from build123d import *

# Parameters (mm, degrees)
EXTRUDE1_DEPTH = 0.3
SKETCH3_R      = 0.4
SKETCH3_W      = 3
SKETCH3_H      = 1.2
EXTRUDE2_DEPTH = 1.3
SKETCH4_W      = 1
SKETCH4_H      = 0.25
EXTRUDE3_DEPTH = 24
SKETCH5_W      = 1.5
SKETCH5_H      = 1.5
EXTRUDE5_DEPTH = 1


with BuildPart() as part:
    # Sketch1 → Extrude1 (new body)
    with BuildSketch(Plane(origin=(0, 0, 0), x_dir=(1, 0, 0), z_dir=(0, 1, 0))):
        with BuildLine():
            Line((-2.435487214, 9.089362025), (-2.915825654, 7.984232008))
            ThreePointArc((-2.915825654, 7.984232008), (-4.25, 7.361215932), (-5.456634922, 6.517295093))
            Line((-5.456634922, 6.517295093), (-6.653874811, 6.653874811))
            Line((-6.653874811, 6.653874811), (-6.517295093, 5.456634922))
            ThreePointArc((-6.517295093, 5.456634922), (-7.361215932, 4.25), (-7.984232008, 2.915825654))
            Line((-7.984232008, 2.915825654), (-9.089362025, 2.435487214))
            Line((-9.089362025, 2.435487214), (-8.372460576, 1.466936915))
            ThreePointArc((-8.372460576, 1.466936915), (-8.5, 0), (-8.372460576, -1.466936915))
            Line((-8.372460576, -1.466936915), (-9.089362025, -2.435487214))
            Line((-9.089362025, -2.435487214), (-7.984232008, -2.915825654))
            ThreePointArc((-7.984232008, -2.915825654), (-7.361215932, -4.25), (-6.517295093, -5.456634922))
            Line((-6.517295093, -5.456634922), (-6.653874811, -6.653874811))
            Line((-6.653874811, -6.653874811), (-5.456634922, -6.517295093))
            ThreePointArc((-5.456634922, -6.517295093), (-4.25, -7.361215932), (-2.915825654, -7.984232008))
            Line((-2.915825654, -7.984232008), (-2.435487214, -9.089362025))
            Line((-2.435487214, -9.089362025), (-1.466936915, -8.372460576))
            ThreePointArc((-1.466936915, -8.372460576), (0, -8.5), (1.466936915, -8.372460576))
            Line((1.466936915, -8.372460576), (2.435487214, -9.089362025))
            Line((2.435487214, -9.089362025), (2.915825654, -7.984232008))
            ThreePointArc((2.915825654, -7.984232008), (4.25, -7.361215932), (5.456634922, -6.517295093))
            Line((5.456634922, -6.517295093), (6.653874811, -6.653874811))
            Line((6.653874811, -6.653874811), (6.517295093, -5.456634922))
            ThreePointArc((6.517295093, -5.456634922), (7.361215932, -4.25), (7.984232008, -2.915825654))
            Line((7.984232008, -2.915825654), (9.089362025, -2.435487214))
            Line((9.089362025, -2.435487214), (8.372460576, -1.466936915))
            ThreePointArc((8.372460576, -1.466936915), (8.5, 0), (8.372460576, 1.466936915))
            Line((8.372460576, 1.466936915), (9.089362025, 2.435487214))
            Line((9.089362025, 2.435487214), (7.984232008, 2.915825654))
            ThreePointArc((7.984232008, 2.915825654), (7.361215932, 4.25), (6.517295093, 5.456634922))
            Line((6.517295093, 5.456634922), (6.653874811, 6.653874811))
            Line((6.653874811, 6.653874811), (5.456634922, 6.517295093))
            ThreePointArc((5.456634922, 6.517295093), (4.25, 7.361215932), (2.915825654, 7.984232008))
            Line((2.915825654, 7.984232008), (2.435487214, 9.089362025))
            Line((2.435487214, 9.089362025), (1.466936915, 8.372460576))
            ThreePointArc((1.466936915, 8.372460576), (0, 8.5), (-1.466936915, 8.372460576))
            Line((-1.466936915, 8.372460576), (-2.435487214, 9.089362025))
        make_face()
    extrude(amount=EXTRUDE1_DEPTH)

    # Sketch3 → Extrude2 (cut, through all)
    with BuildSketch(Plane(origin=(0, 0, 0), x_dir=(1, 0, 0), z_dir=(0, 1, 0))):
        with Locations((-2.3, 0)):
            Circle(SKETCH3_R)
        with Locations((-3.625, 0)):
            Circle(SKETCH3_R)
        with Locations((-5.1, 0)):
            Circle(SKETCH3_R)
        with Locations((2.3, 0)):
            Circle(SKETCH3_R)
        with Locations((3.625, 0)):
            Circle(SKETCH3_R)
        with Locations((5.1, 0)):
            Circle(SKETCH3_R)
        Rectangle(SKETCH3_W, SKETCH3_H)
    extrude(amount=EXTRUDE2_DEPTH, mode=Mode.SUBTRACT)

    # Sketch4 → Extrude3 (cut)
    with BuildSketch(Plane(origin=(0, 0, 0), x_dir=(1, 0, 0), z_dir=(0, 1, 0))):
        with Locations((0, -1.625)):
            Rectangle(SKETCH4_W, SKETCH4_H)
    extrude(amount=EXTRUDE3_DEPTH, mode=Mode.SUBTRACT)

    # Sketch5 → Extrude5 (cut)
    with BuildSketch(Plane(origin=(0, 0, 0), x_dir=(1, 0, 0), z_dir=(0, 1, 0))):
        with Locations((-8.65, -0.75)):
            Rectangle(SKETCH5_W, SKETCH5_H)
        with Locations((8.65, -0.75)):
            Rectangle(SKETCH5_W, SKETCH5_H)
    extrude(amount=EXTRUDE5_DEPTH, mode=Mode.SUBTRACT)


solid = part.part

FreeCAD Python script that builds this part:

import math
import FreeCAD as App
import Part
import Sketcher

V = App.Vector


def add_polygon(sketch, points):
    """Adds a closed chain of lines whose ends are joined by coincident constraints."""
    first, n = sketch.GeometryCount, len(points)
    for a, b in zip(points, points[1:] + points[:1]):
        sketch.addGeometry(Part.LineSegment(App.Vector(*a, 0), App.Vector(*b, 0)), False)
    for i in range(n):
        sketch.addConstraint(Sketcher.Constraint("Coincident", first + i, 2, first + (i + 1) % n, 1))

doc = App.newDocument("Part")
params = doc.addObject("Spreadsheet::Sheet", "Params")
for row, (alias, value) in enumerate([
    ("sketch1_radius", "8.5 mm"),
    ("pad1_length", "0.3 mm"),
    ("sketch2_diameter", "0.8 mm"),
    ("sketch2_width", "3 mm"),
    ("sketch2_height", "1.2 mm"),
    ("sketch3_width", "1 mm"),
    ("sketch3_height", "0.25 mm"),
    ("pocket2_length", "24 mm"),
    ("sketch4_width", "1.5 mm"),
    ("pocket3_length", "1 mm"),
], start=1):
    params.set(f"A{row}", alias)
    params.set(f"B{row}", "=" + value)
    params.setAlias(f"B{row}", alias)

body = doc.addObject("PartDesign::Body", "Body")

# Sketch on XZ plane
sketch1 = body.newObject("Sketcher::SketchObject", "Sketch")
sketch1.AttachmentSupport = (doc.getObject("XZ_Plane"), [""])
sketch1.MapMode = "FlatFace"
sketch1.addGeometry([
    Part.LineSegment(V(-2.4, -9.1, 0), V(-2.9, -8, 0)),  # 0
    Part.ArcOfCircle(Part.Circle(V(0, 0, 0), V(0, 0, 1), 8.5), math.radians(-129.94), math.radians(-110.06)),  # 1
    Part.LineSegment(V(-5.5, -6.5, 0), V(-6.7, -6.7, 0)),  # 2
    Part.LineSegment(V(-6.7, -6.7, 0), V(-6.5, -5.5, 0)),  # 3
    Part.ArcOfCircle(Part.Circle(V(0, 0, 0), V(0, 0, 1), 8.5), math.radians(-159.94), math.radians(-140.06)),  # 4
    Part.LineSegment(V(-8, -2.9, 0), V(-9.1, -2.4, 0)),  # 5
    Part.LineSegment(V(-9.1, -2.4, 0), V(-8.4, -1.5, 0)),  # 6
    Part.ArcOfCircle(Part.Circle(V(0, 0, 0), V(0, 0, 1), 8.5), math.radians(170.06), math.radians(189.94)),  # 7
    Part.LineSegment(V(-8.4, 1.5, 0), V(-9.1, 2.4, 0)),  # 8
    Part.LineSegment(V(-9.1, 2.4, 0), V(-8, 2.9, 0)),  # 9
    Part.ArcOfCircle(Part.Circle(V(0, 0, 0), V(0, 0, 1), 8.5), math.radians(140.06), math.radians(159.94)),  # 10
    Part.LineSegment(V(-6.5, 5.5, 0), V(-6.7, 6.7, 0)),  # 11
    Part.LineSegment(V(-6.7, 6.7, 0), V(-5.5, 6.5, 0)),  # 12
    Part.ArcOfCircle(Part.Circle(V(0, 0, 0), V(0, 0, 1), 8.5), math.radians(110.06), math.radians(129.94)),  # 13
    Part.LineSegment(V(-2.9, 8, 0), V(-2.4, 9.1, 0)),  # 14
    Part.LineSegment(V(-2.4, 9.1, 0), V(-1.5, 8.4, 0)),  # 15
    Part.ArcOfCircle(Part.Circle(V(0, 0, 0), V(0, 0, 1), 8.5), math.radians(80.06), math.radians(99.94)),  # 16
    Part.LineSegment(V(1.5, 8.4, 0), V(2.4, 9.1, 0)),  # 17
    Part.LineSegment(V(2.4, 9.1, 0), V(2.9, 8, 0)),  # 18
    Part.ArcOfCircle(Part.Circle(V(0, 0, 0), V(0, 0, 1), 8.5), math.radians(50.06), math.radians(69.94)),  # 19
    Part.LineSegment(V(5.5, 6.5, 0), V(6.7, 6.7, 0)),  # 20
    Part.LineSegment(V(6.7, 6.7, 0), V(6.5, 5.5, 0)),  # 21
    Part.ArcOfCircle(Part.Circle(V(0, 0, 0), V(0, 0, 1), 8.5), math.radians(20.06), math.radians(39.94)),  # 22
    Part.LineSegment(V(8, 2.9, 0), V(9.1, 2.4, 0)),  # 23
    Part.LineSegment(V(9.1, 2.4, 0), V(8.4, 1.5, 0)),  # 24
    Part.ArcOfCircle(Part.Circle(V(0, 0, 0), V(0, 0, 1), 8.5), math.radians(-9.94), math.radians(9.94)),  # 25
    Part.LineSegment(V(8.4, -1.5, 0), V(9.1, -2.4, 0)),  # 26
    Part.LineSegment(V(9.1, -2.4, 0), V(8, -2.9, 0)),  # 27
    Part.ArcOfCircle(Part.Circle(V(0, 0, 0), V(0, 0, 1), 8.5), math.radians(-39.94), math.radians(-20.06)),  # 28
    Part.LineSegment(V(6.5, -5.5, 0), V(6.7, -6.7, 0)),  # 29
    Part.LineSegment(V(6.7, -6.7, 0), V(5.5, -6.5, 0)),  # 30
    Part.ArcOfCircle(Part.Circle(V(0, 0, 0), V(0, 0, 1), 8.5), math.radians(-69.94), math.radians(-50.06)),  # 31
    Part.LineSegment(V(2.9, -8, 0), V(2.4, -9.1, 0)),  # 32
    Part.LineSegment(V(2.4, -9.1, 0), V(1.5, -8.4, 0)),  # 33
    Part.ArcOfCircle(Part.Circle(V(0, 0, 0), V(0, 0, 1), 8.5), math.radians(-99.94), math.radians(-80.06)),  # 34
    Part.LineSegment(V(-1.5, -8.4, 0), V(-2.4, -9.1, 0)),  # 35
], False)
sketch1.addConstraint([
    Sketcher.Constraint("Coincident", 0, 2, 1, 2),
    Sketcher.Constraint("Coincident", 1, 1, 2, 1),
    Sketcher.Constraint("Coincident", 2, 2, 3, 1),
    Sketcher.Constraint("Coincident", 3, 2, 4, 2),
    Sketcher.Constraint("Coincident", 4, 1, 5, 1),
    Sketcher.Constraint("Coincident", 5, 2, 6, 1),
    Sketcher.Constraint("Coincident", 6, 2, 7, 2),
    Sketcher.Constraint("Coincident", 7, 1, 8, 1),
    Sketcher.Constraint("Coincident", 8, 2, 9, 1),
    Sketcher.Constraint("Coincident", 9, 2, 10, 2),
    Sketcher.Constraint("Coincident", 10, 1, 11, 1),
    Sketcher.Constraint("Coincident", 11, 2, 12, 1),
    Sketcher.Constraint("Coincident", 12, 2, 13, 2),
    Sketcher.Constraint("Coincident", 13, 1, 14, 1),
    Sketcher.Constraint("Coincident", 14, 2, 15, 1),
    Sketcher.Constraint("Coincident", 15, 2, 16, 2),
    Sketcher.Constraint("Coincident", 16, 1, 17, 1),
    Sketcher.Constraint("Coincident", 17, 2, 18, 1),
    Sketcher.Constraint("Coincident", 18, 2, 19, 2),
    Sketcher.Constraint("Coincident", 19, 1, 20, 1),
    Sketcher.Constraint("Coincident", 20, 2, 21, 1),
    Sketcher.Constraint("Coincident", 21, 2, 22, 2),
    Sketcher.Constraint("Coincident", 22, 1, 23, 1),
    Sketcher.Constraint("Coincident", 23, 2, 24, 1),
    Sketcher.Constraint("Coincident", 24, 2, 25, 2),
    Sketcher.Constraint("Coincident", 25, 1, 26, 1),
    Sketcher.Constraint("Coincident", 26, 2, 27, 1),
    Sketcher.Constraint("Coincident", 27, 2, 28, 2),
    Sketcher.Constraint("Coincident", 28, 1, 29, 1),
    Sketcher.Constraint("Coincident", 29, 2, 30, 1),
    Sketcher.Constraint("Coincident", 30, 2, 31, 2),
    Sketcher.Constraint("Coincident", 31, 1, 32, 1),
    Sketcher.Constraint("Coincident", 32, 2, 33, 1),
    Sketcher.Constraint("Coincident", 33, 2, 34, 2),
    Sketcher.Constraint("Coincident", 34, 1, 35, 1),
    Sketcher.Constraint("Coincident", 35, 2, 0, 1),
    Sketcher.Constraint("Coincident", 1, 3, -1, 1),
    Sketcher.Constraint("Coincident", 4, 3, -1, 1),
    Sketcher.Constraint("Coincident", 7, 3, -1, 1),
    Sketcher.Constraint("Coincident", 10, 3, -1, 1),
    Sketcher.Constraint("Coincident", 13, 3, -1, 1),
    Sketcher.Constraint("Coincident", 16, 3, -1, 1),
    Sketcher.Constraint("Coincident", 19, 3, -1, 1),
    Sketcher.Constraint("Coincident", 22, 3, -1, 1),
    Sketcher.Constraint("Coincident", 25, 3, -1, 1),
    Sketcher.Constraint("Coincident", 28, 3, -1, 1),
    Sketcher.Constraint("Coincident", 31, 3, -1, 1),
    Sketcher.Constraint("Coincident", 34, 3, -1, 1),
    Sketcher.Constraint("Equal", 1, 4),
    Sketcher.Constraint("Equal", 4, 7),
    Sketcher.Constraint("Equal", 7, 10),
    Sketcher.Constraint("Equal", 10, 13),
    Sketcher.Constraint("Equal", 13, 16),
    Sketcher.Constraint("Equal", 16, 19),
    Sketcher.Constraint("Equal", 19, 22),
    Sketcher.Constraint("Equal", 22, 25),
    Sketcher.Constraint("Equal", 25, 28),
    Sketcher.Constraint("Equal", 28, 31),
    Sketcher.Constraint("Equal", 31, 34),
    Sketcher.Constraint("Symmetric", 2, 2, 20, 2, -1, 1),
    Sketcher.Constraint("Symmetric", 5, 2, 23, 2, -1, 1),
    Sketcher.Constraint("Symmetric", 8, 2, 26, 2, -1, 1),
    Sketcher.Constraint("Symmetric", 11, 2, 29, 2, -1, 1),
    Sketcher.Constraint("Symmetric", 14, 2, 32, 2, -1, 1),
    Sketcher.Constraint("Symmetric", 17, 2, 35, 2, -1, 1),
    Sketcher.Constraint("Symmetric", 14, 2, 17, 2, -2),
    Sketcher.Constraint("Symmetric", 11, 2, 20, 2, -2),
    Sketcher.Constraint("Symmetric", 8, 2, 23, 2, -2),
    Sketcher.Constraint("Perpendicular", 0, 9),
    Sketcher.Constraint("Perpendicular", 2, 11),
    Sketcher.Constraint("Perpendicular", 3, 12),
    Sketcher.Constraint("Perpendicular", 5, 14),
    Sketcher.Constraint("Perpendicular", 6, 15),
    Sketcher.Constraint("Perpendicular", 8, 17),
    Sketcher.Constraint("Perpendicular", 9, 18),
    Sketcher.Constraint("Perpendicular", 11, 20),
    Sketcher.Constraint("Perpendicular", 12, 21),
    Sketcher.Constraint("Perpendicular", 14, 23),
    Sketcher.Constraint("Perpendicular", 15, 24),
    Sketcher.Constraint("Perpendicular", 17, 26),
    Sketcher.Constraint("Perpendicular", 18, 27),
    Sketcher.Constraint("Perpendicular", 20, 29),
    Sketcher.Constraint("Perpendicular", 21, 30),
    Sketcher.Constraint("Perpendicular", 23, 32),
    Sketcher.Constraint("Perpendicular", 24, 33),
    Sketcher.Constraint("Perpendicular", 26, 35),
    Sketcher.Constraint("Horizontal", 15, 2, 16, 1),
    Sketcher.Constraint("Horizontal", 13, 1, 18, 2),
    Sketcher.Constraint("Horizontal", 12, 2, 19, 1),
    Sketcher.Constraint("Equal", 0, 2),
    Sketcher.Constraint("Equal", 2, 3),
    Sketcher.Constraint("Equal", 3, 5),
    Sketcher.Constraint("Equal", 5, 6),
    Sketcher.Constraint("Equal", 14, 15),
    Sketcher.Constraint("Radius", 1, 8.5),
    Sketcher.Constraint("DistanceX", 5, 2, 6, 2, 0.716901),
    Sketcher.Constraint("DistanceY", 3, 2, 6, 2, 3.989698),
    Sketcher.Constraint("DistanceX", 6, 2, -1, 1, 8.372461),
    Sketcher.Constraint("DistanceY", 0, 2, 16, 3, 7.984232),
])
sketch1.setExpression("Constraints[94]", "Params.sketch1_radius")
pad1 = body.newObject("PartDesign::Pad", "Pad")
pad1.Profile = sketch1
pad1.setExpression("Length", "Params.pad1_length")
pad1.Reversed = True

# Sketch on XZ plane
sketch2 = body.newObject("Sketcher::SketchObject", "Sketch001")
sketch2.AttachmentSupport = (doc.getObject("XZ_Plane"), [""])
sketch2.MapMode = "FlatFace"
sketch2.addGeometry(Part.Circle(V(-2.3, 0, 0), V(0, 0, 1), 0.4), False)  # 0
sketch2.addGeometry(Part.Circle(V(-3.62, 0, 0), V(0, 0, 1), 0.4), False)  # 1
sketch2.addGeometry(Part.Circle(V(-5.1, 0, 0), V(0, 0, 1), 0.4), False)  # 2
sketch2.addGeometry(Part.Circle(V(2.3, 0, 0), V(0, 0, 1), 0.4), False)  # 3
sketch2.addGeometry(Part.Circle(V(3.62, 0, 0), V(0, 0, 1), 0.4), False)  # 4
sketch2.addGeometry(Part.Circle(V(5.1, 0, 0), V(0, 0, 1), 0.4), False)  # 5
add_polygon(sketch2, [(-1.5, -0.6), (-1.5, 0.6), (1.5, 0.6), (1.5, -0.6)])  # lines 6-9
sketch2.addConstraint([
    Sketcher.Constraint("Vertical", 6),
    Sketcher.Constraint("Horizontal", 7),
    Sketcher.Constraint("Vertical", 8),
    Sketcher.Constraint("Horizontal", 9),
    Sketcher.Constraint("Equal", 0, 1),
    Sketcher.Constraint("Equal", 1, 2),
    Sketcher.Constraint("Equal", 2, 3),
    Sketcher.Constraint("Equal", 3, 4),
    Sketcher.Constraint("Equal", 4, 5),
    Sketcher.Constraint("Symmetric", 0, 3, 3, 3, -1, 1),
    Sketcher.Constraint("Symmetric", 1, 3, 4, 3, -1, 1),
    Sketcher.Constraint("Symmetric", 2, 3, 5, 3, -1, 1),
    Sketcher.Constraint("Symmetric", 6, 2, 8, 2, -1, 1),
    Sketcher.Constraint("PointOnObject", 0, 3, -1),
    Sketcher.Constraint("PointOnObject", 1, 3, -1),
    Sketcher.Constraint("PointOnObject", 2, 3, -1),
    Sketcher.Constraint("Diameter", 0, 0.8),
    Sketcher.Constraint("DistanceX", 7, 1, 7, 2, 3.0),
    Sketcher.Constraint("DistanceY", 6, 1, 6, 2, 1.2),
    Sketcher.Constraint("DistanceX", 0, 3, -1, 1, 2.3),
    Sketcher.Constraint("DistanceX", 2, 3, -1, 1, 5.1),
    Sketcher.Constraint("DistanceX", 1, 3, 4, 3, 7.25),
])
sketch2.setExpression("Constraints[20]", "Params.sketch2_diameter")
sketch2.setExpression("Constraints[21]", "Params.sketch2_width")
sketch2.setExpression("Constraints[22]", "Params.sketch2_height")
pocket1 = body.newObject("PartDesign::Pocket", "Pocket")
pocket1.Profile = sketch2
pocket1.Type = "ThroughAll"

# Sketch on XZ plane
sketch3 = body.newObject("Sketcher::SketchObject", "Sketch002")
sketch3.AttachmentSupport = (doc.getObject("XZ_Plane"), [""])
sketch3.MapMode = "FlatFace"
add_polygon(sketch3, [(-0.5, 1.5), (-0.5, 1.75), (0.5, 1.75), (0.5, 1.5)])  # lines 0-3
sketch3.addConstraint([
    Sketcher.Constraint("Vertical", 0),
    Sketcher.Constraint("Horizontal", 1),
    Sketcher.Constraint("Vertical", 2),
    Sketcher.Constraint("Horizontal", 3),
    Sketcher.Constraint("DistanceX", 1, 1, 1, 2, 1.0),
    Sketcher.Constraint("DistanceY", 0, 1, 0, 2, 0.25),
    Sketcher.Constraint("DistanceX", 0, 2, -1, 1, 0.5),
    Sketcher.Constraint("DistanceY", -1, 1, 2, 2, 1.5),
])
sketch3.setExpression("Constraints[8]", "Params.sketch3_width")
sketch3.setExpression("Constraints[9]", "Params.sketch3_height")
pocket2 = body.newObject("PartDesign::Pocket", "Pocket001")
pocket2.Profile = sketch3
pocket2.setExpression("Length", "Params.pocket2_length")

# Sketch on XZ plane
sketch4 = body.newObject("Sketcher::SketchObject", "Sketch003")
sketch4.AttachmentSupport = (doc.getObject("XZ_Plane"), [""])
sketch4.MapMode = "FlatFace"
add_polygon(sketch4, [(-9.4, 0), (-9.4, 1.5), (-7.9, 1.5), (-7.9, 0)])  # lines 0-3
add_polygon(sketch4, [(7.9, 0), (7.9, 1.5), (9.4, 1.5), (9.4, 0)])  # lines 4-7
sketch4.addConstraint([
    Sketcher.Constraint("Vertical", 0),
    Sketcher.Constraint("Horizontal", 1),
    Sketcher.Constraint("Vertical", 2),
    Sketcher.Constraint("Horizontal", 3),
    Sketcher.Constraint("Vertical", 4),
    Sketcher.Constraint("Horizontal", 5),
    Sketcher.Constraint("Vertical", 6),
    Sketcher.Constraint("Horizontal", 7),
    Sketcher.Constraint("Symmetric", 3, 2, 6, 2, -1, 1),
    Sketcher.Constraint("Symmetric", 1, 2, 4, 2, -2),
    Sketcher.Constraint("PointOnObject", 2, 2, -1),
    Sketcher.Constraint("Equal", 7, 0),
    Sketcher.Constraint("DistanceX", 1, 1, 1, 2, 1.5),
    Sketcher.Constraint("DistanceX", 0, 2, -1, 1, 9.4),
])
sketch4.setExpression("Constraints[20]", "Params.sketch4_width")
pocket3 = body.newObject("PartDesign::Pocket", "Pocket002")
pocket3.Profile = sketch4
pocket3.setExpression("Length", "Params.pocket3_length")

doc.recompute()
